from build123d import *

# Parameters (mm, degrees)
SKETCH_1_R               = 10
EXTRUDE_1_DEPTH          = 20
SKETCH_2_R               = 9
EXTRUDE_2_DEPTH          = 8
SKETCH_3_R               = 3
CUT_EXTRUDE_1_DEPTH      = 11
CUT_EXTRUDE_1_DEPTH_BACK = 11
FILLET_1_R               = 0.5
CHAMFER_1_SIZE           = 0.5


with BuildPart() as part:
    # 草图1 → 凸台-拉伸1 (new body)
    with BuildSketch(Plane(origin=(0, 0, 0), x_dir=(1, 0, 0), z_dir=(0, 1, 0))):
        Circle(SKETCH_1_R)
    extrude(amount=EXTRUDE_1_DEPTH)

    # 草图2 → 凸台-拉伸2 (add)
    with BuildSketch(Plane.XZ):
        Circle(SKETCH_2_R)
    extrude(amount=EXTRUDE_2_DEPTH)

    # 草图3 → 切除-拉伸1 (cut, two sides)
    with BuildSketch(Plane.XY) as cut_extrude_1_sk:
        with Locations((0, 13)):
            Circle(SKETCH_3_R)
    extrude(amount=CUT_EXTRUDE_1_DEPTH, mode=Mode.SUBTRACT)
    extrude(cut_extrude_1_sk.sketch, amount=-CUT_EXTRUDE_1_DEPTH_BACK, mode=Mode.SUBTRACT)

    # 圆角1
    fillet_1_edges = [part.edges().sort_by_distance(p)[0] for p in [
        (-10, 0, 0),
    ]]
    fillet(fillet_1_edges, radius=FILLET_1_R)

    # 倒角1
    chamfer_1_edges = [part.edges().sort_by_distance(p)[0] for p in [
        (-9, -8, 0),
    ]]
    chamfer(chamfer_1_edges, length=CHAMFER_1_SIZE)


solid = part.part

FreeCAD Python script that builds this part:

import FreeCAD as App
import Part
import Sketcher

V = App.Vector


def edges_at(feature, points):
    """Names of the edges that pass closest to the given points."""
    edges = feature.Shape.Edges
    near = lambda p: min(range(len(edges)), key=lambda i: edges[i].distToShape(Part.Vertex(*p))[0])
    return sorted({f"Edge{near(p) + 1}" for p in points})

doc = App.newDocument("Part")
body = doc.addObject("PartDesign::Body", "Body")

sketch1 = body.newObject("Sketcher::SketchObject", "Sketch")
sketch1.AttachmentSupport = (doc.getObject("XZ_Plane"), [""])
sketch1.MapMode = "FlatFace"
sketch1.addGeometry(Part.Circle(V(0, 0, 0), V(0, 0, 1), 10), False)
sketch1.addConstraint([
    Sketcher.Constraint("Coincident", 0, 3, -1, 1),
    Sketcher.Constraint("Diameter", 0, 20.0),
])
pad1 = body.newObject("PartDesign::Pad", "Pad")
pad1.Profile = sketch1
pad1.Length = 20
pad1.Reversed = True

sketch2 = body.newObject("Sketcher::SketchObject", "Sketch001")
sketch2.AttachmentSupport = (doc.getObject("XZ_Plane"), [""])
sketch2.MapMode = "FlatFace"
sketch2.addGeometry(Part.Circle(V(0, 0, 0), V(0, 0, 1), 9), False)
sketch2.addConstraint([
    Sketcher.Constraint("Coincident", 0, 3, -1, 1),
    Sketcher.Constraint("Diameter", 0, 18.0),
])
pad2 = body.newObject("PartDesign::Pad", "Pad001")
pad2.Profile = sketch2
pad2.Length = 8

sketch3 = body.newObject("Sketcher::SketchObject", "Sketch002")
sketch3.AttachmentSupport = (doc.getObject("XY_Plane"), [""])
sketch3.MapMode = "FlatFace"
sketch3.addGeometry(Part.Circle(V(0, 13, 0), V(0, 0, 1), 3), False)
sketch3.addConstraint([
    Sketcher.Constraint("PointOnObject", 0, 3, -2),
    Sketcher.Constraint("Diameter", 0, 6.0),
    Sketcher.Constraint("DistanceY", -1, 1, 0, 3, 13.0),
])
pocket1 = body.newObject("PartDesign::Pocket", "Pocket")
pocket1.Profile = sketch3
pocket1.Type = "ThroughAll"
pocket1.Midplane = True
doc.recompute()

fillet = body.newObject("PartDesign::Fillet", "Fillet")
fillet.Base = (pocket1, edges_at(pocket1, [(-10, 0, 0)]))
fillet.Radius = 0.5
doc.recompute()

chamfer = body.newObject("PartDesign::Chamfer", "Chamfer")
chamfer.Base = (fillet, edges_at(fillet, [(-9, -8, 0)]))
chamfer.Size = 0.5

doc.recompute()
